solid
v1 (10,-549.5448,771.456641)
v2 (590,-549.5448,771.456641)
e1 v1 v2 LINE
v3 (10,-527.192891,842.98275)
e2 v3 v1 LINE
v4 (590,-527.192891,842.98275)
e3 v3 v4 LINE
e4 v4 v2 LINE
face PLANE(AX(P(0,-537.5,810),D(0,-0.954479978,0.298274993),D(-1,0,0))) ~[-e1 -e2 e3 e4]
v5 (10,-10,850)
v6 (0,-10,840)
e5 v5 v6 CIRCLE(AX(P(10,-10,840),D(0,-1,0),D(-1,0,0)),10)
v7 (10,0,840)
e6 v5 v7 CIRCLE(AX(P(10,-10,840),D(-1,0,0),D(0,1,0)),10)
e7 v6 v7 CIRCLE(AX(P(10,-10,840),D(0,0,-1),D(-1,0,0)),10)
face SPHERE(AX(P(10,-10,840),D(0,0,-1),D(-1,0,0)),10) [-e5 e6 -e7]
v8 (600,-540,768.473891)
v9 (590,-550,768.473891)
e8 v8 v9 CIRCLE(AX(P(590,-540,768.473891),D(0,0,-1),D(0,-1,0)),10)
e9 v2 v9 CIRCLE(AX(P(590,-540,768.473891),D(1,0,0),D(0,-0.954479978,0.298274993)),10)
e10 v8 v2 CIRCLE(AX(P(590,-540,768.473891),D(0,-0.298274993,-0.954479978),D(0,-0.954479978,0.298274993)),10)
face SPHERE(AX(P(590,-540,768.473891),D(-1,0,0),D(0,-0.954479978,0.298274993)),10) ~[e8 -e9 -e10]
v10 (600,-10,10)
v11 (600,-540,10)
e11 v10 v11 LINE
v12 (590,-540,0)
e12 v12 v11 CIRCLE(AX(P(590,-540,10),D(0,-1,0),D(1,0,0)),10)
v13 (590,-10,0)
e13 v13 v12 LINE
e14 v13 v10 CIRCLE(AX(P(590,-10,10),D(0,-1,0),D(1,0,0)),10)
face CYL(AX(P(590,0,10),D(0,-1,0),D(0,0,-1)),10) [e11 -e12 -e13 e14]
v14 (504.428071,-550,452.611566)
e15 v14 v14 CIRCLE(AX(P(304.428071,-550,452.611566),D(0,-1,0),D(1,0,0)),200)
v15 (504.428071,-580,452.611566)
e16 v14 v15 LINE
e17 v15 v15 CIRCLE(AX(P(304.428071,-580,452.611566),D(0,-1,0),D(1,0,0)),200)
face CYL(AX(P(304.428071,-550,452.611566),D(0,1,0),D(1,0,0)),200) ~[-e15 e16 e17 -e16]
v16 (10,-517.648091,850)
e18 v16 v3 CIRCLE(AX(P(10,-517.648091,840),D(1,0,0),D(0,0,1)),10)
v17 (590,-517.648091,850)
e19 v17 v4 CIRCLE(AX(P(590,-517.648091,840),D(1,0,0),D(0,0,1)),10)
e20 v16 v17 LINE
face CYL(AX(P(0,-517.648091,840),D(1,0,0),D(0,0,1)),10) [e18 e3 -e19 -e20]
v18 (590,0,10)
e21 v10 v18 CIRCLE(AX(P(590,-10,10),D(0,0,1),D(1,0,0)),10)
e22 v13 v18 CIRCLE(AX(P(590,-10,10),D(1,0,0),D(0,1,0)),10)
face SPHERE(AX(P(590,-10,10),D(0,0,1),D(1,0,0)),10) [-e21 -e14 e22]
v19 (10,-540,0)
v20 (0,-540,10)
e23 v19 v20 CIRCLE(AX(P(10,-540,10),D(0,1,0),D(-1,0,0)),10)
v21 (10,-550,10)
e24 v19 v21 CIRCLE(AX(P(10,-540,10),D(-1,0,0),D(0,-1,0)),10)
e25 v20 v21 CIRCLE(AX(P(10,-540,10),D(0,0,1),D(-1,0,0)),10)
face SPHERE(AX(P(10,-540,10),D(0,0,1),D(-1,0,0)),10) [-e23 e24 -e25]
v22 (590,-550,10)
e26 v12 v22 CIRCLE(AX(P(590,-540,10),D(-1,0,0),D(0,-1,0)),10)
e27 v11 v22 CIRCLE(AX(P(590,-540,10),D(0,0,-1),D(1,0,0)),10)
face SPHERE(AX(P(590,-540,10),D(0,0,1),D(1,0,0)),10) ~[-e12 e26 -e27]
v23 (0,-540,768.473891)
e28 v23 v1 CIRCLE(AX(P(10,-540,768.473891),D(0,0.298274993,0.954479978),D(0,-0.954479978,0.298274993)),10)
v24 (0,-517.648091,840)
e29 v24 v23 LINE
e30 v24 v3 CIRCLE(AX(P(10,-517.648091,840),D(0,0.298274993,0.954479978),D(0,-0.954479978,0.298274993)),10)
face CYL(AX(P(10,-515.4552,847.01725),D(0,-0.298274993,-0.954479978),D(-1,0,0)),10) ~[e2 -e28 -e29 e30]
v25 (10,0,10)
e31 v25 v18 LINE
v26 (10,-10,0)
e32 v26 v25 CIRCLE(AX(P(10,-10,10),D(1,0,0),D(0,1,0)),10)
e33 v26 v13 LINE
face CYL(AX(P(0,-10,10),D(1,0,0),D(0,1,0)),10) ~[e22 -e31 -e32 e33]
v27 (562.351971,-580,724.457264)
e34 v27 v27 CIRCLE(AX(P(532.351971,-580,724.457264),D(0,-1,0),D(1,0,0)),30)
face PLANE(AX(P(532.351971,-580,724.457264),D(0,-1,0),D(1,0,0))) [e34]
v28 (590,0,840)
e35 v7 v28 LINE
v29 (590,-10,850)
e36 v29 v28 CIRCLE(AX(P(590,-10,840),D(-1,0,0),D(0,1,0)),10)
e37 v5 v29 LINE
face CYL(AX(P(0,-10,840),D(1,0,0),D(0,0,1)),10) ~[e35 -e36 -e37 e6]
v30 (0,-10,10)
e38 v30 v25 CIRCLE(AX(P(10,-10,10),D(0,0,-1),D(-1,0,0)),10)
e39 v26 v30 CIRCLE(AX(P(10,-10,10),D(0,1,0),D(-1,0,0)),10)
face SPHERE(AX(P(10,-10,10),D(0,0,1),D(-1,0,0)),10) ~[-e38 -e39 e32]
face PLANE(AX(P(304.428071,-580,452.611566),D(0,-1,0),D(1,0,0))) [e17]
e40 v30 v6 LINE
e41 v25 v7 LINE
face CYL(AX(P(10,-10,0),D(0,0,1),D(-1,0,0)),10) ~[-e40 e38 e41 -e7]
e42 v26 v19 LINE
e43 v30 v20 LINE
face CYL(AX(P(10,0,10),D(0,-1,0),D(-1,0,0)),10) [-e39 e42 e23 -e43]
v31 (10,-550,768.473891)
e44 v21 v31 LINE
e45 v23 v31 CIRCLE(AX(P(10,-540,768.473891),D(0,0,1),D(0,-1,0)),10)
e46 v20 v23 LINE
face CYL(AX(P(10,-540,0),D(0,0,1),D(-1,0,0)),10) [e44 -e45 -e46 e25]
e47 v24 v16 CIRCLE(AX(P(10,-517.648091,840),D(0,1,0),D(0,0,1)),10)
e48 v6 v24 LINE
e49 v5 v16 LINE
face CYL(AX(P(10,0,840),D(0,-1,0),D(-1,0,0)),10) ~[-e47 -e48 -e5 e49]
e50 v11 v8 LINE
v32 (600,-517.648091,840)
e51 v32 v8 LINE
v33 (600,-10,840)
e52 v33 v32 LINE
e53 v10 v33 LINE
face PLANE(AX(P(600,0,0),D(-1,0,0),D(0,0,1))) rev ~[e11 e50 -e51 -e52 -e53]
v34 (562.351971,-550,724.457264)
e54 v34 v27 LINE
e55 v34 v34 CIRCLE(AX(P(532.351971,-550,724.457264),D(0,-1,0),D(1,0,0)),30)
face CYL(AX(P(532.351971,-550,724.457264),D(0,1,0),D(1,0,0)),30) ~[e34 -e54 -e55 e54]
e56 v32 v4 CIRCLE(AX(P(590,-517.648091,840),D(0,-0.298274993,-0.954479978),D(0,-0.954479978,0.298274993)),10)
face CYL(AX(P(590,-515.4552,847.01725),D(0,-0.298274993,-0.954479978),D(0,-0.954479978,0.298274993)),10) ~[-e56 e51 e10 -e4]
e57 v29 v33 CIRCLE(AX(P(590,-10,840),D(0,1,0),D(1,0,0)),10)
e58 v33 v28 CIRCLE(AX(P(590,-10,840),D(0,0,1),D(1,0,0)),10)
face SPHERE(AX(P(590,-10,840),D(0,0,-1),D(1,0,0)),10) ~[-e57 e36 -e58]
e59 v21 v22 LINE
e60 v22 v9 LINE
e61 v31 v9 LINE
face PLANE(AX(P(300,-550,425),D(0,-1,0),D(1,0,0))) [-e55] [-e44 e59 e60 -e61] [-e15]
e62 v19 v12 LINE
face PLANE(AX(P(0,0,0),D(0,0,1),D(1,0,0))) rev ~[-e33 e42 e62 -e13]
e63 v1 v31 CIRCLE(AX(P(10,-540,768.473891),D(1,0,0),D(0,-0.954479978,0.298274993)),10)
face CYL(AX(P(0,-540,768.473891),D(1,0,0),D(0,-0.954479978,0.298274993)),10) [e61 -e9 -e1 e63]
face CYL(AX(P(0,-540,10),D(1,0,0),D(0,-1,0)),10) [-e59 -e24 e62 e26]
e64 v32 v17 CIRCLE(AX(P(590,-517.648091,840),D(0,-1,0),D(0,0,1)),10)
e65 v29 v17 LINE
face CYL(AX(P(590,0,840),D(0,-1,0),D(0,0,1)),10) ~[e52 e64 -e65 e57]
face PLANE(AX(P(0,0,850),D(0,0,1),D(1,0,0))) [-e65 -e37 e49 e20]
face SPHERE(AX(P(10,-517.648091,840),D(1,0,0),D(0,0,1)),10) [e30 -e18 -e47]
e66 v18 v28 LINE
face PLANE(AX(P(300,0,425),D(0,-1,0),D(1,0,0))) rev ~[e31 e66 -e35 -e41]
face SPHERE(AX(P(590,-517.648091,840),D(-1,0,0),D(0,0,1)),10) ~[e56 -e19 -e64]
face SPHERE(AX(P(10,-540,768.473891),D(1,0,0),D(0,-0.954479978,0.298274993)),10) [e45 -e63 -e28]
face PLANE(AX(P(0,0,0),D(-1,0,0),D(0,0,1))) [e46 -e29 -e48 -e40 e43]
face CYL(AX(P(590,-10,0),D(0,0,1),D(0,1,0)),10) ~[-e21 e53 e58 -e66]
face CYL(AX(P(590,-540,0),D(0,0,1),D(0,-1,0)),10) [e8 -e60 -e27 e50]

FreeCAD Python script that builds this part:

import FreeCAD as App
import Part
import Sketcher
from FreeCAD import Vector
Q = App.Units.Quantity


def edges_at(feature, points):
    """Names of the edges that pass closest to the given points."""
    edges = feature.Shape.Edges
    near = lambda p: min(range(len(edges)), key=lambda i: edges[i].distToShape(Part.Vertex(*p))[0])
    return sorted({f"Edge{near(p) + 1}" for p in points})


def add_polygon(sketch, points):
    """Adds a closed chain of lines whose ends are joined by coincident constraints."""
    first, n = sketch.GeometryCount, len(points)
    for a, b in zip(points, points[1:] + points[:1]):
        sketch.addGeometry(Part.LineSegment(App.Vector(*a, 0), App.Vector(*b, 0)), False)
    for i in range(n):
        sketch.addConstraint(Sketcher.Constraint("Coincident", first + i, 2, first + (i + 1) % n, 1))

doc = App.newDocument("Part")
body = doc.addObject("PartDesign::Body", "Body")

sketch1 = doc.addObject("Sketcher::SketchObject", "Sketch")
body.addObject(sketch1)
sketch1.AttachmentSupport = (doc.XZ_Plane, [""])
sketch1.MapMode = "FlatFace"
add_polygon(sketch1, [(0, 850), (0, 0), (600, 0), (600, 850)])
sketch1.addConstraint([
    Sketcher.Constraint("Vertical", 0),
    Sketcher.Constraint("Horizontal", 1),
    Sketcher.Constraint("Vertical", 2),
    Sketcher.Constraint("Horizontal", 3),
    Sketcher.Constraint("Coincident", 0, 2, -1, 1),
    Sketcher.Constraint("DistanceX", 1, 1, 1, 2, Q("600 mm")),
    Sketcher.Constraint("DistanceY", 0, 2, 0, 1, Q("850 mm")),
])
pad1 = doc.addObject("PartDesign::Pad", "Pad")
body.addObject(pad1)
pad1.Profile = sketch1
pad1.Length = 550
doc.recompute()

chamfer = doc.addObject("PartDesign::Chamfer", "Chamfer")
body.addObject(chamfer)
chamfer.Base = (pad1, edges_at(pad1, [(300, -550, 850)]))
chamfer.ChamferType = "Two distances"
chamfer.Size = 25
chamfer.Size2 = 80
doc.recompute()

fillet = doc.addObject("PartDesign::Fillet", "Fillet")
body.addObject(fillet)
fillet.Base = (chamfer, ["Edge1"])
fillet.UseAllEdges = True
fillet.Radius = 10

sketch2 = doc.addObject("Sketcher::SketchObject", "Sketch001")
body.addObject(sketch2)
sketch2.AttachmentSupport = (doc.XZ_Plane, [""])
sketch2.MapMode = "FlatFace"
sketch2.AttachmentOffset = App.Placement(Vector(0, 0, 550), App.Rotation())
sketch2.addGeometry(Part.Circle(Vector(304.428071, 452.611566, 0), Vector(0, 0, 1), 200), False)
sketch2.addConstraint([
    Sketcher.Constraint("Diameter", 0, Q("400 mm")),
    Sketcher.Constraint("DistanceX", -1, 1, 0, 3, Q("304.428071 mm")),
    Sketcher.Constraint("DistanceY", -1, 1, 0, 3, Q("452.611566 mm")),
])
pad2 = doc.addObject("PartDesign::Pad", "Pad001")
body.addObject(pad2)
pad2.Profile = sketch2
pad2.Length = 30

sketch3 = doc.addObject("Sketcher::SketchObject", "Sketch002")
body.addObject(sketch3)
sketch3.AttachmentSupport = (doc.XZ_Plane, [""])
sketch3.MapMode = "FlatFace"
sketch3.AttachmentOffset = App.Placement(Vector(0, 0, 550), App.Rotation())
sketch3.addGeometry(Part.Circle(Vector(532.351971, 724.457264, 0), Vector(0, 0, 1), 30), False)
sketch3.addConstraint([
    Sketcher.Constraint("Diameter", 0, Q("60 mm")),
    Sketcher.Constraint("DistanceX", -1, 1, 0, 3, Q("532.351971 mm")),
    Sketcher.Constraint("DistanceY", -1, 1, 0, 3, Q("724.457264 mm")),
])
pad3 = doc.addObject("PartDesign::Pad", "Pad002")
body.addObject(pad3)
pad3.Profile = sketch3
pad3.Length = 30

doc.recompute()
